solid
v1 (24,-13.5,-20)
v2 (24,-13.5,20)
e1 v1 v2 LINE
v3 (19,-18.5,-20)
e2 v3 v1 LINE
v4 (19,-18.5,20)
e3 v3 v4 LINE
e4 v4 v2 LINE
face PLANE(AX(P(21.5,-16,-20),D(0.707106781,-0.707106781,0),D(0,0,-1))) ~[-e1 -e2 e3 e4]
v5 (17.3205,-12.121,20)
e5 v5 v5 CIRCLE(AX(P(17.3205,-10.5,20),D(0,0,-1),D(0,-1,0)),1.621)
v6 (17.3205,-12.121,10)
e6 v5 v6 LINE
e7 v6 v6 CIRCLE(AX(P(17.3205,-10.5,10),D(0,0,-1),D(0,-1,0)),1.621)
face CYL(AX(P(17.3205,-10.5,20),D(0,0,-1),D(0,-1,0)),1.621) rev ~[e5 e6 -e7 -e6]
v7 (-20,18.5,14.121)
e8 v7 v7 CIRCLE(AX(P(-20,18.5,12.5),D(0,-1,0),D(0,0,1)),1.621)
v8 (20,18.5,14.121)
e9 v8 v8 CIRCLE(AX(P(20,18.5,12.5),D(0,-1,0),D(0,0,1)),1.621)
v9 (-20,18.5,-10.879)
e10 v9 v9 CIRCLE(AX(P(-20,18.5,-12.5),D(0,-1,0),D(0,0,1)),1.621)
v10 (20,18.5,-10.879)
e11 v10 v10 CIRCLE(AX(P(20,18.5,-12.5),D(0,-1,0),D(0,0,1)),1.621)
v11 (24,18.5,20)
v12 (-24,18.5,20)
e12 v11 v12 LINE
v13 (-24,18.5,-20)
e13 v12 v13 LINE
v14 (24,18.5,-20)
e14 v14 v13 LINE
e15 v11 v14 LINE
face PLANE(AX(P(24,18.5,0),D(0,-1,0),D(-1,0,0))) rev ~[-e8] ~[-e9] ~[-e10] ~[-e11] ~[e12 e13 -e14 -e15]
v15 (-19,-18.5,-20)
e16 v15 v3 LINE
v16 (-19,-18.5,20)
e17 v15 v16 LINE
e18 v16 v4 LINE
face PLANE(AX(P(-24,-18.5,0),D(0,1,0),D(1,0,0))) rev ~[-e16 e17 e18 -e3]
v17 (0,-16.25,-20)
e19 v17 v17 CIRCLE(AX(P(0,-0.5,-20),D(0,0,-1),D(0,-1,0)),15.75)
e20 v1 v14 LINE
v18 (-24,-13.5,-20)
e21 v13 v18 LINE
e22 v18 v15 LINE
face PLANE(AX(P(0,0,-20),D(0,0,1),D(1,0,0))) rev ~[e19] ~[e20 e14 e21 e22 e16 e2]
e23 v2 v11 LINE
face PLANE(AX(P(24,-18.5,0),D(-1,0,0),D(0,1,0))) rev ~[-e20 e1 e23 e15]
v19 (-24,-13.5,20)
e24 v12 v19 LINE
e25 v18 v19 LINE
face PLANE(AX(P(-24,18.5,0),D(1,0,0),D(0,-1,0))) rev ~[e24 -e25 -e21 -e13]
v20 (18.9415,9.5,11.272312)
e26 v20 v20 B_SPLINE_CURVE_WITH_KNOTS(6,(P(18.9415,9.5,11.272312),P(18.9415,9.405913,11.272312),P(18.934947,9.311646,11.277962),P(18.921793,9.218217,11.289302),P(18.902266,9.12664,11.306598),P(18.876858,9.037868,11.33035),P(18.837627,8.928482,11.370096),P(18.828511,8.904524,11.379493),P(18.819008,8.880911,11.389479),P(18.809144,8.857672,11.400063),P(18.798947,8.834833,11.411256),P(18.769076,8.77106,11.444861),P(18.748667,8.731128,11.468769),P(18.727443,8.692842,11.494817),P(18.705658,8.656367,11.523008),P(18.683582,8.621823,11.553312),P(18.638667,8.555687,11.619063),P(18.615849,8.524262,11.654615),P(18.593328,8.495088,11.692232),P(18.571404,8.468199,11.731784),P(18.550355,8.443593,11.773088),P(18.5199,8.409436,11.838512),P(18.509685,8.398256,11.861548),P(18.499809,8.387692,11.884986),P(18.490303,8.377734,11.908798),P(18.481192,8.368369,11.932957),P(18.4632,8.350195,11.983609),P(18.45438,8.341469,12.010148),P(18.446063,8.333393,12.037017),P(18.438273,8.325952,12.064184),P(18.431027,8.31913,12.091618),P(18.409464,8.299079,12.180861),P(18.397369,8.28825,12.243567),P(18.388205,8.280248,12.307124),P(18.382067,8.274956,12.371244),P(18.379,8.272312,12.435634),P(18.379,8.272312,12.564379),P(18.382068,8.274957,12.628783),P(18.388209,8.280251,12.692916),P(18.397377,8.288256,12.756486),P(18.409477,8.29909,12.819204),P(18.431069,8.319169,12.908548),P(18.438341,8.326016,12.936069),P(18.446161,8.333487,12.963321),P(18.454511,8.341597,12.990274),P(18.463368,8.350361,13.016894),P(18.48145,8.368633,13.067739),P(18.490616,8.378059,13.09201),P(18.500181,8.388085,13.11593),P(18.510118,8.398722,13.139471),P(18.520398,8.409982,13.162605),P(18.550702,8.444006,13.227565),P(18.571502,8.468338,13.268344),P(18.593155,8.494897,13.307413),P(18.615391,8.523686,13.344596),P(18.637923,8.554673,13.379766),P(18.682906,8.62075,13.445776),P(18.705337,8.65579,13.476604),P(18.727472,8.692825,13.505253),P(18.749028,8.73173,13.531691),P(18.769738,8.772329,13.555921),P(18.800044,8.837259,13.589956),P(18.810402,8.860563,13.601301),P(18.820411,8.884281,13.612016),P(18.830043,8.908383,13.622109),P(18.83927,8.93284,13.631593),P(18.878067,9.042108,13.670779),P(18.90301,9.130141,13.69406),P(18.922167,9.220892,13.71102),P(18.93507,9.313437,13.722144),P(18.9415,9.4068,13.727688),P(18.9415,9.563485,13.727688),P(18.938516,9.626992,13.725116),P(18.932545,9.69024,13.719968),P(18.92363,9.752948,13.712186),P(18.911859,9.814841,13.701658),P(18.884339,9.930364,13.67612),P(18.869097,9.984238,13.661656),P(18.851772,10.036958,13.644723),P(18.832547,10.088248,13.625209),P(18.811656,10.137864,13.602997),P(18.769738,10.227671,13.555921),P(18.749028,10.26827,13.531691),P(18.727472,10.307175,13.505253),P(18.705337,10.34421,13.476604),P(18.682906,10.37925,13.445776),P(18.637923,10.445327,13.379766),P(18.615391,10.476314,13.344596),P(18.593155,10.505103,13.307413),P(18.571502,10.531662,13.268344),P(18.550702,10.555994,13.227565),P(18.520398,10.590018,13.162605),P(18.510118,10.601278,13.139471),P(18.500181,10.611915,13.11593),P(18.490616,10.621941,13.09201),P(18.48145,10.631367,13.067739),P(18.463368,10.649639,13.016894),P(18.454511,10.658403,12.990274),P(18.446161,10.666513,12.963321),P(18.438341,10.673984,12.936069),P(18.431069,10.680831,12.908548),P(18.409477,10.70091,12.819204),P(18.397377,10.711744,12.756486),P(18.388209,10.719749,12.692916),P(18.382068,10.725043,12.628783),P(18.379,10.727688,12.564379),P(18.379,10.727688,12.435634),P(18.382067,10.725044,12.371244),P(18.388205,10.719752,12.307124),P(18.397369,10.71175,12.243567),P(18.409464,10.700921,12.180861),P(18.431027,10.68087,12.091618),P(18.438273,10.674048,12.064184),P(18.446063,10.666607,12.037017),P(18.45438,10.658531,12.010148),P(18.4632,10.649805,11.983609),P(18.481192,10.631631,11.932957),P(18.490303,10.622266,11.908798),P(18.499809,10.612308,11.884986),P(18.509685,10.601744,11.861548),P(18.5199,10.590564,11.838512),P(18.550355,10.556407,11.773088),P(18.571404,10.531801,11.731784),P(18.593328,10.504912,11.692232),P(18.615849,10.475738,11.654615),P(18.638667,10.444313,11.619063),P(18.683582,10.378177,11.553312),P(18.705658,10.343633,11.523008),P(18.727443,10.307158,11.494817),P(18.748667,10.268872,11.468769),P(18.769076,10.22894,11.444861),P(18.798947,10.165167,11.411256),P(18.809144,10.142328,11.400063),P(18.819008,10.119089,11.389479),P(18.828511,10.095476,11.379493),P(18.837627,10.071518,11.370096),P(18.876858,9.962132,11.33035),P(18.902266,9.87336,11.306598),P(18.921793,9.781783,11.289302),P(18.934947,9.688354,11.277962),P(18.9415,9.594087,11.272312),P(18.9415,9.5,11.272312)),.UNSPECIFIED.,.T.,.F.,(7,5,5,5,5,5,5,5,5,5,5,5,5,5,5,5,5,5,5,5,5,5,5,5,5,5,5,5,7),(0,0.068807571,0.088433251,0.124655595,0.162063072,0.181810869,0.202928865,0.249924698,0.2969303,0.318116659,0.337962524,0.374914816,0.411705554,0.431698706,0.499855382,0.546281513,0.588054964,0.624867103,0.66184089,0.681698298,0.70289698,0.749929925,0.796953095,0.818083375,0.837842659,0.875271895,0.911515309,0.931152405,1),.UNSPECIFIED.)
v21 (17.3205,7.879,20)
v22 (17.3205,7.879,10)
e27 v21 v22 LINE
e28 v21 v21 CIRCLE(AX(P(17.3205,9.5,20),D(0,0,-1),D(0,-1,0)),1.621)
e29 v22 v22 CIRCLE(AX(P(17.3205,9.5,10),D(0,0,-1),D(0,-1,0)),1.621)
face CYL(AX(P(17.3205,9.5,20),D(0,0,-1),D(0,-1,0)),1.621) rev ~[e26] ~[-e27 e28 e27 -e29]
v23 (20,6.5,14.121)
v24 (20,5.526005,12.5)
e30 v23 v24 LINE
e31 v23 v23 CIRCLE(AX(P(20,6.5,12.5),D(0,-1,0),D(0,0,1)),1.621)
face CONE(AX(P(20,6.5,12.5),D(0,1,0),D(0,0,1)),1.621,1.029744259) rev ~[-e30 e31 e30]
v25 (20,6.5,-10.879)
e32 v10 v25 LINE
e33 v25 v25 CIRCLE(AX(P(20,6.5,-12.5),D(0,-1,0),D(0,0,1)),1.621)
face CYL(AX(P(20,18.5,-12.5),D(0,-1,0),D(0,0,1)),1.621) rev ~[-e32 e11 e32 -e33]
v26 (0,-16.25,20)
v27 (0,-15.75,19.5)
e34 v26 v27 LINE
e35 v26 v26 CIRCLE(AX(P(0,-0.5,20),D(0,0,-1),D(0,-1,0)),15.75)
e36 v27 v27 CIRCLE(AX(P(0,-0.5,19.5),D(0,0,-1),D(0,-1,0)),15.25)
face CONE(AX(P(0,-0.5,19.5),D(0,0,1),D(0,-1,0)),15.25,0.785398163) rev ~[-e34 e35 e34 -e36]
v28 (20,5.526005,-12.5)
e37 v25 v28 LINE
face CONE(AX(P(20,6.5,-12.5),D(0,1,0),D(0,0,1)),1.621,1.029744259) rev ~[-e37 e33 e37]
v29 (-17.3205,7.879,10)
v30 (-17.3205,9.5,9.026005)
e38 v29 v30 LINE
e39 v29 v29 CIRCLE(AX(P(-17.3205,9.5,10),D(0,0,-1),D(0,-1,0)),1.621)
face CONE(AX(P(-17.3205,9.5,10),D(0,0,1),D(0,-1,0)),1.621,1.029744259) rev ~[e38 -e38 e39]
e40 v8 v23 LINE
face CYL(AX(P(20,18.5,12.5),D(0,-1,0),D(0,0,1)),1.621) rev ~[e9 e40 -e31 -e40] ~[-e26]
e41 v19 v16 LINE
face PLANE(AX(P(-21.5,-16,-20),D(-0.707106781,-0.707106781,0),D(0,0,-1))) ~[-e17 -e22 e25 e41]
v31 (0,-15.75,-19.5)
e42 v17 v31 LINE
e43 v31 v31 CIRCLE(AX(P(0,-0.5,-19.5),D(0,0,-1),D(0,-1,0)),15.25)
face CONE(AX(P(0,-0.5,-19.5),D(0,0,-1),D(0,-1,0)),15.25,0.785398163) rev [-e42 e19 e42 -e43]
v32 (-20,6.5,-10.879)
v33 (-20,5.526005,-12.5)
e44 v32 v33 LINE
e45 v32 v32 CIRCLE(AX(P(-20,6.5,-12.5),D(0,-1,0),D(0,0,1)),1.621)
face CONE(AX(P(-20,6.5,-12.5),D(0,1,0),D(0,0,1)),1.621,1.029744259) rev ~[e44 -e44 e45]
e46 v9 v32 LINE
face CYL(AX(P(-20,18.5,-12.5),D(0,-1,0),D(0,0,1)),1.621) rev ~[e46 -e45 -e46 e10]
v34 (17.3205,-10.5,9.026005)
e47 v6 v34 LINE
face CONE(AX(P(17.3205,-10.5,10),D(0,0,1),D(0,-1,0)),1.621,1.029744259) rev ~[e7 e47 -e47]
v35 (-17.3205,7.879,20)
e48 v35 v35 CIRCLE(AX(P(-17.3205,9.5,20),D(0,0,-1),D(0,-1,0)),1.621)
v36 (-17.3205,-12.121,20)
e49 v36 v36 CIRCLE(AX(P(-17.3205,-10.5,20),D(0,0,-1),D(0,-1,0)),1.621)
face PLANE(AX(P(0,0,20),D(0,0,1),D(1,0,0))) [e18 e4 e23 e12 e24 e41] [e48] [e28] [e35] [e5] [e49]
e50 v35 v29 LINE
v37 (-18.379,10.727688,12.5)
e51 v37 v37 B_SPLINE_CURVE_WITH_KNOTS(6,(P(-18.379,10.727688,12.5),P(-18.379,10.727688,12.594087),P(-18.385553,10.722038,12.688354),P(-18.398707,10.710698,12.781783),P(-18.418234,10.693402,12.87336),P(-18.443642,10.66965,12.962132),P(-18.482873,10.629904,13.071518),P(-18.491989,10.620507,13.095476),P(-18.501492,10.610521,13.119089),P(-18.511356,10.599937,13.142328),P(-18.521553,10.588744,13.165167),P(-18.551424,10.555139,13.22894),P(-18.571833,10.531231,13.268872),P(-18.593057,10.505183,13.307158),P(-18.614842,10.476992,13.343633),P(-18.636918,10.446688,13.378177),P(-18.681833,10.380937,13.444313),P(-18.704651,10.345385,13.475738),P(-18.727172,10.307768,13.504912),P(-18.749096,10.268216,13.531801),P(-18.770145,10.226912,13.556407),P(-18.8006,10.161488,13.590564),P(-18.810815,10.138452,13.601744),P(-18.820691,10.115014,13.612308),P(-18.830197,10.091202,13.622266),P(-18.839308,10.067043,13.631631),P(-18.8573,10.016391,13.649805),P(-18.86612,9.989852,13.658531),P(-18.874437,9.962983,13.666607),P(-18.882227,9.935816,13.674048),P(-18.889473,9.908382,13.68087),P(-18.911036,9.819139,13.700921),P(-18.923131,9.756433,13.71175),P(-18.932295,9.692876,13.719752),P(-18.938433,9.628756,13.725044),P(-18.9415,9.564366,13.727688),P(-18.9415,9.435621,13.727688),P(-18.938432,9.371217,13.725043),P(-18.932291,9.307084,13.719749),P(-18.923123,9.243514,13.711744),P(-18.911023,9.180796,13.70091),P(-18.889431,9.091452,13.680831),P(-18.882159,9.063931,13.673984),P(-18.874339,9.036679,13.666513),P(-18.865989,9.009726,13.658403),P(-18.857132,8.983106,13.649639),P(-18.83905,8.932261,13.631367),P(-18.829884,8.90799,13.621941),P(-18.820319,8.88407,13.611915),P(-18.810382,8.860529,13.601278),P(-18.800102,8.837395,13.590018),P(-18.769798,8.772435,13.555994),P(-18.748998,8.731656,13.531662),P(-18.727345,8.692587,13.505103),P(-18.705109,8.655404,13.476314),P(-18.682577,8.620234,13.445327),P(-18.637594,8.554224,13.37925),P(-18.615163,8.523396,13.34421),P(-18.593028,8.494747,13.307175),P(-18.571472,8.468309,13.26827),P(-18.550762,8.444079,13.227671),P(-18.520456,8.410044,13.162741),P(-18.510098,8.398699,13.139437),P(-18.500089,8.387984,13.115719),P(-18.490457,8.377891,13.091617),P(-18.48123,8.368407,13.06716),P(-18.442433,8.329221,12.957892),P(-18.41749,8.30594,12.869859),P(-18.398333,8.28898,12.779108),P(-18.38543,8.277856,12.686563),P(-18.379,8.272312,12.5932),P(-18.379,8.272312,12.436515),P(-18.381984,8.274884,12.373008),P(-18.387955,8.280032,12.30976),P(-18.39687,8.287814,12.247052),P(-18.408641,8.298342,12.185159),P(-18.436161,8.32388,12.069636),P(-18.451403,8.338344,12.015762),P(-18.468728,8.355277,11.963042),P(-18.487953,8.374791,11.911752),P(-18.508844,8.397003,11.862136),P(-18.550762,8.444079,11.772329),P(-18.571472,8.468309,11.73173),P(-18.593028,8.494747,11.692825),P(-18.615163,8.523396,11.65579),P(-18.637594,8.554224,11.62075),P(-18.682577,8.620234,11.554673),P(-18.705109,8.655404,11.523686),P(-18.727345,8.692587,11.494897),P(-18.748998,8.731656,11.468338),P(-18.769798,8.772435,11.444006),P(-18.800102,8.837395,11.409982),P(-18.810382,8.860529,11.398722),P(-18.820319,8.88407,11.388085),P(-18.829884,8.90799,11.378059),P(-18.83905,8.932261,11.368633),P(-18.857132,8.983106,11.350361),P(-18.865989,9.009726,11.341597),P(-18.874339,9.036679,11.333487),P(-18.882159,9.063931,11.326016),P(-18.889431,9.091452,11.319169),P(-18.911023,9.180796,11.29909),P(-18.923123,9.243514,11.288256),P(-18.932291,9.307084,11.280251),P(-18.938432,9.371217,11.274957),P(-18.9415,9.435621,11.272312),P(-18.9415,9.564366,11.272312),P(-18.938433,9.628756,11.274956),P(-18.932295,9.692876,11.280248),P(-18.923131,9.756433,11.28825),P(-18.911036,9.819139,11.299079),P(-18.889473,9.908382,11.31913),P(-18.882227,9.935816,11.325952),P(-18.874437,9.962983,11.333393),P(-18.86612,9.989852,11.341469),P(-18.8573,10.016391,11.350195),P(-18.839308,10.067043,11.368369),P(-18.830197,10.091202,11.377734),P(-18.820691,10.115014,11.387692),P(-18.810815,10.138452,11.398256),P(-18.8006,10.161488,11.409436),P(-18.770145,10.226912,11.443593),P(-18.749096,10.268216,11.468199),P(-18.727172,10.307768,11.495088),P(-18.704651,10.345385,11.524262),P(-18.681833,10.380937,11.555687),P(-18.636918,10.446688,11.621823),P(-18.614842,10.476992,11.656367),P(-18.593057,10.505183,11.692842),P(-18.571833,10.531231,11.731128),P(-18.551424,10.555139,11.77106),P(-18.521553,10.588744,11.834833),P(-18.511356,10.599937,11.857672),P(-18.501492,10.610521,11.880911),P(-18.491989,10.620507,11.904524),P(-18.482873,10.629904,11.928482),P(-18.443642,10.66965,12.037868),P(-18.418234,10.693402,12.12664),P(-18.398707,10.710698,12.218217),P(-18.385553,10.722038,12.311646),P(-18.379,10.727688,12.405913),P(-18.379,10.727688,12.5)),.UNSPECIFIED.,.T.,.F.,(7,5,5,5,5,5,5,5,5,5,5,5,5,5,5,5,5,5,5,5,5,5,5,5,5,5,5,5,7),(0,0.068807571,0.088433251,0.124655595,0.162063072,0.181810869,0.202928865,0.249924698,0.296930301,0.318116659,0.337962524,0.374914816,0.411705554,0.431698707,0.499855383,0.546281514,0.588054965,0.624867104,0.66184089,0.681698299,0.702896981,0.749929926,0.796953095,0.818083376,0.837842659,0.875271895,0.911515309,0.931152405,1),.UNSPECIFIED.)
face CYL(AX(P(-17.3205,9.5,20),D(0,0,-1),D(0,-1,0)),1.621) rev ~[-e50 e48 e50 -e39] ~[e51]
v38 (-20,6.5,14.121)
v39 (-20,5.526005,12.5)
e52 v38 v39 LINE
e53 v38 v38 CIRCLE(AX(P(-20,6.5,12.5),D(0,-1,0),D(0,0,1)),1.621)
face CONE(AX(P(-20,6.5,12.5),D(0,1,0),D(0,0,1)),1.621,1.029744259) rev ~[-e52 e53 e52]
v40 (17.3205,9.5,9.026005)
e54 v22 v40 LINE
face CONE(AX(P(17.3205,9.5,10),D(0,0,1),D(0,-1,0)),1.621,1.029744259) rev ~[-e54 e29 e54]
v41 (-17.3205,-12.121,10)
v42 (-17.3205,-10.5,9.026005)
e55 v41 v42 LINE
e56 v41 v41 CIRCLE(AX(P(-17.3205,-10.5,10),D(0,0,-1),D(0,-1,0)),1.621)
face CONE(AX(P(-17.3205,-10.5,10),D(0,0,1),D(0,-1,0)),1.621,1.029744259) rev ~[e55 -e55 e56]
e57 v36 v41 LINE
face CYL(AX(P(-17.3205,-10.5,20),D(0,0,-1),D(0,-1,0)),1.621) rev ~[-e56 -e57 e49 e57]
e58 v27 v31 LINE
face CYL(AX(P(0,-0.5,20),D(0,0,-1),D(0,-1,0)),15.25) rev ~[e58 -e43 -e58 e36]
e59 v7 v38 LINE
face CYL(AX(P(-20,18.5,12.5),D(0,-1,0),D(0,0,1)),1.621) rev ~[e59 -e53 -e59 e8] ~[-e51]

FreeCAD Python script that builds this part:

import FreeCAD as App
import Part
import Sketcher


def edges_at(feature, points):
    """Names of the edges that pass closest to the given points."""
    edges = feature.Shape.Edges
    near = lambda p: min(range(len(edges)), key=lambda i: edges[i].distToShape(Part.Vertex(*p))[0])
    return sorted({f"Edge{near(p) + 1}" for p in points})


def add_polygon(sketch, points):
    """Adds a closed chain of lines whose ends are joined by coincident constraints."""
    first, n = sketch.GeometryCount, len(points)
    for a, b in zip(points, points[1:] + points[:1]):
        sketch.addGeometry(Part.LineSegment(App.Vector(*a, 0), App.Vector(*b, 0)), False)
    for i in range(n):
        sketch.addConstraint(Sketcher.Constraint("Coincident", first + i, 2, first + (i + 1) % n, 1))

doc = App.newDocument("Part")
body = doc.addObject("PartDesign::Body", "Body")

# Sketch on XY plane
sketch1 = body.newObject("Sketcher::SketchObject", "Sketch")
sketch1.AttachmentSupport = (doc.getObject("XY_Plane"), [""])
sketch1.MapMode = "FlatFace"
add_polygon(sketch1, [(-24, 18), (-24, -18), (24, -18), (24, 18)])  # lines 0-3
sketch1.addConstraint([
    Sketcher.Constraint("Vertical", 0),
    Sketcher.Constraint("Horizontal", 1),
    Sketcher.Constraint("Vertical", 2),
    Sketcher.Constraint("Horizontal", 3),
    Sketcher.Constraint("Symmetric", 0, 2, 2, 2, -1, 1),
    Sketcher.Constraint("DistanceX", 1, 1, 1, 2, 48.0),
    Sketcher.Constraint("DistanceY", 0, 2, 0, 1, 37.0),
])
pad1 = body.newObject("PartDesign::Pad", "Pad")
pad1.Profile = sketch1
pad1.Length = 40
pad1.Midplane = True
doc.recompute()

chamfer = body.newObject("PartDesign::Chamfer", "Chamfer")
chamfer.Base = (pad1, edges_at(pad1, [(24, -18.5, 0), (-24, -18.5, 0)]))
chamfer.Size = 5

# Sketch on XY plane
sketch2 = body.newObject("Sketcher::SketchObject", "Sketch001")
sketch2.AttachmentSupport = (doc.getObject("XY_Plane"), [""])
sketch2.MapMode = "FlatFace"
sketch2.AttachmentOffset = App.Placement(App.Vector(0, 0, 20), App.Rotation())
sketch2.addGeometry(Part.Circle(App.Vector(0, 0, 0), App.Vector(0, 0, 1), 15), False)
sketch2.addConstraint([
    Sketcher.Constraint("PointOnObject", 0, 3, -2),
    Sketcher.Constraint("Diameter", 0, 30.5),
    Sketcher.Constraint("DistanceY", 0, 3, -1, 1, 0.5),
])
doc.recompute()
hole = body.newObject("PartDesign::Hole", "Hole")
hole.Profile = sketch2
hole.ThreadType = "None"
hole.Diameter = 30.5
hole.DepthType = "ThroughAll"
doc.recompute()

chamfer2 = body.newObject("PartDesign::Chamfer", "Chamfer001")
chamfer2.Base = (hole, edges_at(hole, [(0, 14.75, 20), (0, 14.75, -20)]))
chamfer2.Size = 0.5

# Sketch on XZ plane
sketch3 = body.newObject("Sketcher::SketchObject", "Sketch002")
sketch3.AttachmentSupport = (doc.getObject("XZ_Plane"), [""])
sketch3.MapMode = "FlatFace"
sketch3.AttachmentOffset = App.Placement(App.Vector(0, 0, -18.5), App.Rotation())
sketch3.addGeometry([
    Part.Circle(App.Vector(-20, -12.5, 0), App.Vector(0, 0, 1), 1.6),
    Part.Circle(App.Vector(-20, 12.5, 0), App.Vector(0, 0, 1), 1.6),
    Part.Circle(App.Vector(20, -12.5, 0), App.Vector(0, 0, 1), 1.6),
    Part.Circle(App.Vector(20, 12.5, 0), App.Vector(0, 0, 1), 1.6),
], False)
sketch3.addConstraint([
    Sketcher.Constraint("Equal", 0, 1),
    Sketcher.Constraint("Equal", 1, 2),
    Sketcher.Constraint("Equal", 2, 3),
    Sketcher.Constraint("Symmetric", 1, 3, 2, 3, -1, 1),
    Sketcher.Constraint("Symmetric", 0, 3, 3, 3, -1, 1),
    Sketcher.Constraint("Symmetric", 0, 3, 2, 3, -2),
    Sketcher.Constraint("Diameter", 0, 3.242),
    Sketcher.Constraint("DistanceX", 0, 3, -1, 1, 20.0),
    Sketcher.Constraint("DistanceY", 0, 3, 1, 3, 25.0),
])
doc.recompute()
hole2 = body.newObject("PartDesign::Hole", "Hole001")
hole2.Profile = sketch3
hole2.ThreadType = "None"
hole2.Diameter = 3.242
hole2.DepthType = "Dimension"
hole2.Depth = 12
hole2.DrillPoint = "Angled"
hole2.DrillPointAngle = 118
hole2.Reversed = True

# Sketch on XY plane
sketch4 = body.newObject("Sketcher::SketchObject", "Sketch003")
sketch4.AttachmentSupport = (doc.getObject("XY_Plane"), [""])
sketch4.MapMode = "FlatFace"
sketch4.AttachmentOffset = App.Placement(App.Vector(0, 0, 20), App.Rotation())
sketch4.addGeometry([
    Part.Circle(App.Vector(-17.3, 9.5, 0), App.Vector(0, 0, 1), 1.6),
    Part.Circle(App.Vector(-17.3, -10.5, 0), App.Vector(0, 0, 1), 1.6),
    Part.Circle(App.Vector(17.3, -10.5, 0), App.Vector(0, 0, 1), 1.6),
    Part.Circle(App.Vector(17.3, 9.5, 0), App.Vector(0, 0, 1), 1.6),
], False)
sketch4.addConstraint([
    Sketcher.Constraint("Equal", 0, 1),
    Sketcher.Constraint("Equal", 1, 2),
    Sketcher.Constraint("Equal", 2, 3),
    Sketcher.Constraint("Symmetric", 1, 3, 2, 3, -2),
    Sketcher.Constraint("Symmetric", 0, 3, 3, 3, -2),
    Sketcher.Constraint("Vertical", 0, 3, 1, 3),
    Sketcher.Constraint("Diameter", 0, 3.242),
    Sketcher.Constraint("DistanceY", 1, 3, 0, 3, 20.0),
    Sketcher.Constraint("DistanceY", -1, 1, 0, 3, 9.5),
    Sketcher.Constraint("DistanceX", 1, 3, 2, 3, 34.641),
])
doc.recompute()
hole3 = body.newObject("PartDesign::Hole", "Hole002")
hole3.Profile = sketch4
hole3.ThreadType = "None"
hole3.Diameter = 3.242
hole3.DepthType = "Dimension"
hole3.Depth = 10
hole3.DrillPoint = "Angled"
hole3.DrillPointAngle = 118

doc.recompute()
